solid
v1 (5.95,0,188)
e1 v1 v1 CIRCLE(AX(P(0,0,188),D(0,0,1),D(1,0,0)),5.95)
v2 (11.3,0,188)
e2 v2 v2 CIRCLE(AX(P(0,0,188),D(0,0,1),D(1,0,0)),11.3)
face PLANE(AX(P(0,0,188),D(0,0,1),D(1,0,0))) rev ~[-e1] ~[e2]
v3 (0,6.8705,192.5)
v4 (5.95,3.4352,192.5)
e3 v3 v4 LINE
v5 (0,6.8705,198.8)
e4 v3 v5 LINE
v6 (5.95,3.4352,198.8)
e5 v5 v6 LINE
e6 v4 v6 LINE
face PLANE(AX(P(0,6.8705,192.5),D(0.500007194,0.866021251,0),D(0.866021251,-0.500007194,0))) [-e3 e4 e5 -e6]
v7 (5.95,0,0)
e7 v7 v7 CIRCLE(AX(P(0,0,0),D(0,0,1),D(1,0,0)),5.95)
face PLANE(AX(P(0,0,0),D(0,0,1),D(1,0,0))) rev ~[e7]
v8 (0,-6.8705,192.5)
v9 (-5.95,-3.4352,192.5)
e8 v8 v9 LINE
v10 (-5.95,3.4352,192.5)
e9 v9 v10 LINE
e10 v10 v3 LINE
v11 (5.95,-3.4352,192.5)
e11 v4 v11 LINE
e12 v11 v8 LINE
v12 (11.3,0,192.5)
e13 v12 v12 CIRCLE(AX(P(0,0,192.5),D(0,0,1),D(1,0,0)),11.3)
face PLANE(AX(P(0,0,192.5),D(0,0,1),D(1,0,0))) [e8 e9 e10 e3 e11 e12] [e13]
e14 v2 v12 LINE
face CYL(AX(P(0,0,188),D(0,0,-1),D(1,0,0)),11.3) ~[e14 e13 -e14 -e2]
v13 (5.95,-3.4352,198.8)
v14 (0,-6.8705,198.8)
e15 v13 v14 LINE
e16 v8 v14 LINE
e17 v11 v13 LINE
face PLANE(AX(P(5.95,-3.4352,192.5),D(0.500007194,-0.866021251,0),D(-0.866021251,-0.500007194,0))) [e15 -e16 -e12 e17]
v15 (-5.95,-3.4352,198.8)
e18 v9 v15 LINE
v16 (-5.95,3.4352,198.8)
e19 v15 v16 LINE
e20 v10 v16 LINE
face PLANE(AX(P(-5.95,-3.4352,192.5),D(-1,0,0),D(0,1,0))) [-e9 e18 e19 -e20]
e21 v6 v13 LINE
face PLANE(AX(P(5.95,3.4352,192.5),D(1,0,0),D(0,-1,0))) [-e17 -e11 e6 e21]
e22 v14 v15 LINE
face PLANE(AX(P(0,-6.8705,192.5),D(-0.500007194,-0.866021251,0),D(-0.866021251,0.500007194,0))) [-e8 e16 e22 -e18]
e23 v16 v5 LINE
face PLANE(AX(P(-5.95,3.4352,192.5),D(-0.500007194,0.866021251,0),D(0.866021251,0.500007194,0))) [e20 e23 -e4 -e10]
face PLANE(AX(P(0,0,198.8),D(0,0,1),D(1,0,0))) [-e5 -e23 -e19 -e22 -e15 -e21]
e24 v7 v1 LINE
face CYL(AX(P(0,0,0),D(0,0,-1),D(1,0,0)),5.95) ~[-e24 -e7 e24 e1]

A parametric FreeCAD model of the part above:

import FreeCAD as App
import Part
import Sketcher

V = App.Vector
Q = App.Units.Quantity

doc = App.newDocument("Part")
body = doc.addObject("PartDesign::Body", "Body")

sketch1 = body.newObject("Sketcher::SketchObject", "Sketch")
sketch1.AttachmentSupport = (doc.getObject("XY_Plane"), [""])
sketch1.MapMode = "FlatFace"
sketch1.addGeometry(Part.Circle(V(0, 0, 0), V(0, 0, 1), 5.95), False)
sketch1.addConstraint([
    Sketcher.Constraint("Coincident", 0, 3, -1, 1),
    Sketcher.Constraint("Diameter", 0, 11.9),
])
pad1 = body.newObject("PartDesign::Pad", "Pad")
pad1.Profile = sketch1
pad1.Length = 188

sketch2 = body.newObject("Sketcher::SketchObject", "Sketch001")
sketch2.AttachmentSupport = (doc.getObject("XY_Plane"), [""])
sketch2.MapMode = "FlatFace"
sketch2.AttachmentOffset = App.Placement(V(0, 0, 188), App.Rotation())
sketch2.addGeometry(Part.Circle(V(0, 0, 0), V(0, 0, 1), 11.3), False)
sketch2.addConstraint([
    Sketcher.Constraint("Coincident", 0, 3, -1, 1),
    Sketcher.Constraint("Diameter", 0, 22.6),
])
pad2 = body.newObject("PartDesign::Pad", "Pad001")
pad2.Profile = sketch2
pad2.Length = 4.5

sketch3 = body.newObject("Sketcher::SketchObject", "Sketch002")
sketch3.AttachmentSupport = (doc.getObject("XY_Plane"), [""])
sketch3.MapMode = "FlatFace"
sketch3.AttachmentOffset = App.Placement(V(0, 0, 192.5), App.Rotation())
sketch3.addGeometry([
    Part.LineSegment(V(0, -6.8705, 0), V(5.95, -3.4352, 0)),
    Part.LineSegment(V(5.95, -3.4352, 0), V(5.95, 3.4352, 0)),
    Part.LineSegment(V(5.95, 3.4352, 0), V(0, 6.8705, 0)),
    Part.LineSegment(V(0, 6.8705, 0), V(-5.95, 3.4352, 0)),
    Part.LineSegment(V(-5.95, 3.4352, 0), V(-5.95, -3.4352, 0)),
    Part.LineSegment(V(-5.95, -3.4352, 0), V(0, -6.8705, 0)),
], False)
sketch3.addConstraint([
    Sketcher.Constraint("Coincident", 0, 2, 1, 1),
    Sketcher.Constraint("Coincident", 1, 2, 2, 1),
    Sketcher.Constraint("Coincident", 2, 2, 3, 1),
    Sketcher.Constraint("Coincident", 3, 2, 4, 1),
    Sketcher.Constraint("Coincident", 4, 2, 5, 1),
    Sketcher.Constraint("Coincident", 5, 2, 0, 1),
    Sketcher.Constraint("Vertical", 1),
    Sketcher.Constraint("Vertical", 4),
    Sketcher.Constraint("Symmetric", 0, 2, 3, 2, -1, 1),
    Sketcher.Constraint("Symmetric", 2, 2, 5, 2, -1, 1),
    Sketcher.Constraint("PointOnObject", 2, 2, -2),
    Sketcher.Constraint("Parallel", 2, 5),
    Sketcher.Constraint("Horizontal", 1, 2, 3, 2),
    Sketcher.Constraint("Angle", 0, Q("30.0005 deg")),
    Sketcher.Constraint("DistanceX", 3, 2, 1, 2, 11.9),
    Sketcher.Constraint("DistanceY", 1, 1, 1, 2, 6.8704),
])
pad3 = body.newObject("PartDesign::Pad", "Pad002")
pad3.Profile = sketch3
pad3.Length = 6.3

doc.recompute()
